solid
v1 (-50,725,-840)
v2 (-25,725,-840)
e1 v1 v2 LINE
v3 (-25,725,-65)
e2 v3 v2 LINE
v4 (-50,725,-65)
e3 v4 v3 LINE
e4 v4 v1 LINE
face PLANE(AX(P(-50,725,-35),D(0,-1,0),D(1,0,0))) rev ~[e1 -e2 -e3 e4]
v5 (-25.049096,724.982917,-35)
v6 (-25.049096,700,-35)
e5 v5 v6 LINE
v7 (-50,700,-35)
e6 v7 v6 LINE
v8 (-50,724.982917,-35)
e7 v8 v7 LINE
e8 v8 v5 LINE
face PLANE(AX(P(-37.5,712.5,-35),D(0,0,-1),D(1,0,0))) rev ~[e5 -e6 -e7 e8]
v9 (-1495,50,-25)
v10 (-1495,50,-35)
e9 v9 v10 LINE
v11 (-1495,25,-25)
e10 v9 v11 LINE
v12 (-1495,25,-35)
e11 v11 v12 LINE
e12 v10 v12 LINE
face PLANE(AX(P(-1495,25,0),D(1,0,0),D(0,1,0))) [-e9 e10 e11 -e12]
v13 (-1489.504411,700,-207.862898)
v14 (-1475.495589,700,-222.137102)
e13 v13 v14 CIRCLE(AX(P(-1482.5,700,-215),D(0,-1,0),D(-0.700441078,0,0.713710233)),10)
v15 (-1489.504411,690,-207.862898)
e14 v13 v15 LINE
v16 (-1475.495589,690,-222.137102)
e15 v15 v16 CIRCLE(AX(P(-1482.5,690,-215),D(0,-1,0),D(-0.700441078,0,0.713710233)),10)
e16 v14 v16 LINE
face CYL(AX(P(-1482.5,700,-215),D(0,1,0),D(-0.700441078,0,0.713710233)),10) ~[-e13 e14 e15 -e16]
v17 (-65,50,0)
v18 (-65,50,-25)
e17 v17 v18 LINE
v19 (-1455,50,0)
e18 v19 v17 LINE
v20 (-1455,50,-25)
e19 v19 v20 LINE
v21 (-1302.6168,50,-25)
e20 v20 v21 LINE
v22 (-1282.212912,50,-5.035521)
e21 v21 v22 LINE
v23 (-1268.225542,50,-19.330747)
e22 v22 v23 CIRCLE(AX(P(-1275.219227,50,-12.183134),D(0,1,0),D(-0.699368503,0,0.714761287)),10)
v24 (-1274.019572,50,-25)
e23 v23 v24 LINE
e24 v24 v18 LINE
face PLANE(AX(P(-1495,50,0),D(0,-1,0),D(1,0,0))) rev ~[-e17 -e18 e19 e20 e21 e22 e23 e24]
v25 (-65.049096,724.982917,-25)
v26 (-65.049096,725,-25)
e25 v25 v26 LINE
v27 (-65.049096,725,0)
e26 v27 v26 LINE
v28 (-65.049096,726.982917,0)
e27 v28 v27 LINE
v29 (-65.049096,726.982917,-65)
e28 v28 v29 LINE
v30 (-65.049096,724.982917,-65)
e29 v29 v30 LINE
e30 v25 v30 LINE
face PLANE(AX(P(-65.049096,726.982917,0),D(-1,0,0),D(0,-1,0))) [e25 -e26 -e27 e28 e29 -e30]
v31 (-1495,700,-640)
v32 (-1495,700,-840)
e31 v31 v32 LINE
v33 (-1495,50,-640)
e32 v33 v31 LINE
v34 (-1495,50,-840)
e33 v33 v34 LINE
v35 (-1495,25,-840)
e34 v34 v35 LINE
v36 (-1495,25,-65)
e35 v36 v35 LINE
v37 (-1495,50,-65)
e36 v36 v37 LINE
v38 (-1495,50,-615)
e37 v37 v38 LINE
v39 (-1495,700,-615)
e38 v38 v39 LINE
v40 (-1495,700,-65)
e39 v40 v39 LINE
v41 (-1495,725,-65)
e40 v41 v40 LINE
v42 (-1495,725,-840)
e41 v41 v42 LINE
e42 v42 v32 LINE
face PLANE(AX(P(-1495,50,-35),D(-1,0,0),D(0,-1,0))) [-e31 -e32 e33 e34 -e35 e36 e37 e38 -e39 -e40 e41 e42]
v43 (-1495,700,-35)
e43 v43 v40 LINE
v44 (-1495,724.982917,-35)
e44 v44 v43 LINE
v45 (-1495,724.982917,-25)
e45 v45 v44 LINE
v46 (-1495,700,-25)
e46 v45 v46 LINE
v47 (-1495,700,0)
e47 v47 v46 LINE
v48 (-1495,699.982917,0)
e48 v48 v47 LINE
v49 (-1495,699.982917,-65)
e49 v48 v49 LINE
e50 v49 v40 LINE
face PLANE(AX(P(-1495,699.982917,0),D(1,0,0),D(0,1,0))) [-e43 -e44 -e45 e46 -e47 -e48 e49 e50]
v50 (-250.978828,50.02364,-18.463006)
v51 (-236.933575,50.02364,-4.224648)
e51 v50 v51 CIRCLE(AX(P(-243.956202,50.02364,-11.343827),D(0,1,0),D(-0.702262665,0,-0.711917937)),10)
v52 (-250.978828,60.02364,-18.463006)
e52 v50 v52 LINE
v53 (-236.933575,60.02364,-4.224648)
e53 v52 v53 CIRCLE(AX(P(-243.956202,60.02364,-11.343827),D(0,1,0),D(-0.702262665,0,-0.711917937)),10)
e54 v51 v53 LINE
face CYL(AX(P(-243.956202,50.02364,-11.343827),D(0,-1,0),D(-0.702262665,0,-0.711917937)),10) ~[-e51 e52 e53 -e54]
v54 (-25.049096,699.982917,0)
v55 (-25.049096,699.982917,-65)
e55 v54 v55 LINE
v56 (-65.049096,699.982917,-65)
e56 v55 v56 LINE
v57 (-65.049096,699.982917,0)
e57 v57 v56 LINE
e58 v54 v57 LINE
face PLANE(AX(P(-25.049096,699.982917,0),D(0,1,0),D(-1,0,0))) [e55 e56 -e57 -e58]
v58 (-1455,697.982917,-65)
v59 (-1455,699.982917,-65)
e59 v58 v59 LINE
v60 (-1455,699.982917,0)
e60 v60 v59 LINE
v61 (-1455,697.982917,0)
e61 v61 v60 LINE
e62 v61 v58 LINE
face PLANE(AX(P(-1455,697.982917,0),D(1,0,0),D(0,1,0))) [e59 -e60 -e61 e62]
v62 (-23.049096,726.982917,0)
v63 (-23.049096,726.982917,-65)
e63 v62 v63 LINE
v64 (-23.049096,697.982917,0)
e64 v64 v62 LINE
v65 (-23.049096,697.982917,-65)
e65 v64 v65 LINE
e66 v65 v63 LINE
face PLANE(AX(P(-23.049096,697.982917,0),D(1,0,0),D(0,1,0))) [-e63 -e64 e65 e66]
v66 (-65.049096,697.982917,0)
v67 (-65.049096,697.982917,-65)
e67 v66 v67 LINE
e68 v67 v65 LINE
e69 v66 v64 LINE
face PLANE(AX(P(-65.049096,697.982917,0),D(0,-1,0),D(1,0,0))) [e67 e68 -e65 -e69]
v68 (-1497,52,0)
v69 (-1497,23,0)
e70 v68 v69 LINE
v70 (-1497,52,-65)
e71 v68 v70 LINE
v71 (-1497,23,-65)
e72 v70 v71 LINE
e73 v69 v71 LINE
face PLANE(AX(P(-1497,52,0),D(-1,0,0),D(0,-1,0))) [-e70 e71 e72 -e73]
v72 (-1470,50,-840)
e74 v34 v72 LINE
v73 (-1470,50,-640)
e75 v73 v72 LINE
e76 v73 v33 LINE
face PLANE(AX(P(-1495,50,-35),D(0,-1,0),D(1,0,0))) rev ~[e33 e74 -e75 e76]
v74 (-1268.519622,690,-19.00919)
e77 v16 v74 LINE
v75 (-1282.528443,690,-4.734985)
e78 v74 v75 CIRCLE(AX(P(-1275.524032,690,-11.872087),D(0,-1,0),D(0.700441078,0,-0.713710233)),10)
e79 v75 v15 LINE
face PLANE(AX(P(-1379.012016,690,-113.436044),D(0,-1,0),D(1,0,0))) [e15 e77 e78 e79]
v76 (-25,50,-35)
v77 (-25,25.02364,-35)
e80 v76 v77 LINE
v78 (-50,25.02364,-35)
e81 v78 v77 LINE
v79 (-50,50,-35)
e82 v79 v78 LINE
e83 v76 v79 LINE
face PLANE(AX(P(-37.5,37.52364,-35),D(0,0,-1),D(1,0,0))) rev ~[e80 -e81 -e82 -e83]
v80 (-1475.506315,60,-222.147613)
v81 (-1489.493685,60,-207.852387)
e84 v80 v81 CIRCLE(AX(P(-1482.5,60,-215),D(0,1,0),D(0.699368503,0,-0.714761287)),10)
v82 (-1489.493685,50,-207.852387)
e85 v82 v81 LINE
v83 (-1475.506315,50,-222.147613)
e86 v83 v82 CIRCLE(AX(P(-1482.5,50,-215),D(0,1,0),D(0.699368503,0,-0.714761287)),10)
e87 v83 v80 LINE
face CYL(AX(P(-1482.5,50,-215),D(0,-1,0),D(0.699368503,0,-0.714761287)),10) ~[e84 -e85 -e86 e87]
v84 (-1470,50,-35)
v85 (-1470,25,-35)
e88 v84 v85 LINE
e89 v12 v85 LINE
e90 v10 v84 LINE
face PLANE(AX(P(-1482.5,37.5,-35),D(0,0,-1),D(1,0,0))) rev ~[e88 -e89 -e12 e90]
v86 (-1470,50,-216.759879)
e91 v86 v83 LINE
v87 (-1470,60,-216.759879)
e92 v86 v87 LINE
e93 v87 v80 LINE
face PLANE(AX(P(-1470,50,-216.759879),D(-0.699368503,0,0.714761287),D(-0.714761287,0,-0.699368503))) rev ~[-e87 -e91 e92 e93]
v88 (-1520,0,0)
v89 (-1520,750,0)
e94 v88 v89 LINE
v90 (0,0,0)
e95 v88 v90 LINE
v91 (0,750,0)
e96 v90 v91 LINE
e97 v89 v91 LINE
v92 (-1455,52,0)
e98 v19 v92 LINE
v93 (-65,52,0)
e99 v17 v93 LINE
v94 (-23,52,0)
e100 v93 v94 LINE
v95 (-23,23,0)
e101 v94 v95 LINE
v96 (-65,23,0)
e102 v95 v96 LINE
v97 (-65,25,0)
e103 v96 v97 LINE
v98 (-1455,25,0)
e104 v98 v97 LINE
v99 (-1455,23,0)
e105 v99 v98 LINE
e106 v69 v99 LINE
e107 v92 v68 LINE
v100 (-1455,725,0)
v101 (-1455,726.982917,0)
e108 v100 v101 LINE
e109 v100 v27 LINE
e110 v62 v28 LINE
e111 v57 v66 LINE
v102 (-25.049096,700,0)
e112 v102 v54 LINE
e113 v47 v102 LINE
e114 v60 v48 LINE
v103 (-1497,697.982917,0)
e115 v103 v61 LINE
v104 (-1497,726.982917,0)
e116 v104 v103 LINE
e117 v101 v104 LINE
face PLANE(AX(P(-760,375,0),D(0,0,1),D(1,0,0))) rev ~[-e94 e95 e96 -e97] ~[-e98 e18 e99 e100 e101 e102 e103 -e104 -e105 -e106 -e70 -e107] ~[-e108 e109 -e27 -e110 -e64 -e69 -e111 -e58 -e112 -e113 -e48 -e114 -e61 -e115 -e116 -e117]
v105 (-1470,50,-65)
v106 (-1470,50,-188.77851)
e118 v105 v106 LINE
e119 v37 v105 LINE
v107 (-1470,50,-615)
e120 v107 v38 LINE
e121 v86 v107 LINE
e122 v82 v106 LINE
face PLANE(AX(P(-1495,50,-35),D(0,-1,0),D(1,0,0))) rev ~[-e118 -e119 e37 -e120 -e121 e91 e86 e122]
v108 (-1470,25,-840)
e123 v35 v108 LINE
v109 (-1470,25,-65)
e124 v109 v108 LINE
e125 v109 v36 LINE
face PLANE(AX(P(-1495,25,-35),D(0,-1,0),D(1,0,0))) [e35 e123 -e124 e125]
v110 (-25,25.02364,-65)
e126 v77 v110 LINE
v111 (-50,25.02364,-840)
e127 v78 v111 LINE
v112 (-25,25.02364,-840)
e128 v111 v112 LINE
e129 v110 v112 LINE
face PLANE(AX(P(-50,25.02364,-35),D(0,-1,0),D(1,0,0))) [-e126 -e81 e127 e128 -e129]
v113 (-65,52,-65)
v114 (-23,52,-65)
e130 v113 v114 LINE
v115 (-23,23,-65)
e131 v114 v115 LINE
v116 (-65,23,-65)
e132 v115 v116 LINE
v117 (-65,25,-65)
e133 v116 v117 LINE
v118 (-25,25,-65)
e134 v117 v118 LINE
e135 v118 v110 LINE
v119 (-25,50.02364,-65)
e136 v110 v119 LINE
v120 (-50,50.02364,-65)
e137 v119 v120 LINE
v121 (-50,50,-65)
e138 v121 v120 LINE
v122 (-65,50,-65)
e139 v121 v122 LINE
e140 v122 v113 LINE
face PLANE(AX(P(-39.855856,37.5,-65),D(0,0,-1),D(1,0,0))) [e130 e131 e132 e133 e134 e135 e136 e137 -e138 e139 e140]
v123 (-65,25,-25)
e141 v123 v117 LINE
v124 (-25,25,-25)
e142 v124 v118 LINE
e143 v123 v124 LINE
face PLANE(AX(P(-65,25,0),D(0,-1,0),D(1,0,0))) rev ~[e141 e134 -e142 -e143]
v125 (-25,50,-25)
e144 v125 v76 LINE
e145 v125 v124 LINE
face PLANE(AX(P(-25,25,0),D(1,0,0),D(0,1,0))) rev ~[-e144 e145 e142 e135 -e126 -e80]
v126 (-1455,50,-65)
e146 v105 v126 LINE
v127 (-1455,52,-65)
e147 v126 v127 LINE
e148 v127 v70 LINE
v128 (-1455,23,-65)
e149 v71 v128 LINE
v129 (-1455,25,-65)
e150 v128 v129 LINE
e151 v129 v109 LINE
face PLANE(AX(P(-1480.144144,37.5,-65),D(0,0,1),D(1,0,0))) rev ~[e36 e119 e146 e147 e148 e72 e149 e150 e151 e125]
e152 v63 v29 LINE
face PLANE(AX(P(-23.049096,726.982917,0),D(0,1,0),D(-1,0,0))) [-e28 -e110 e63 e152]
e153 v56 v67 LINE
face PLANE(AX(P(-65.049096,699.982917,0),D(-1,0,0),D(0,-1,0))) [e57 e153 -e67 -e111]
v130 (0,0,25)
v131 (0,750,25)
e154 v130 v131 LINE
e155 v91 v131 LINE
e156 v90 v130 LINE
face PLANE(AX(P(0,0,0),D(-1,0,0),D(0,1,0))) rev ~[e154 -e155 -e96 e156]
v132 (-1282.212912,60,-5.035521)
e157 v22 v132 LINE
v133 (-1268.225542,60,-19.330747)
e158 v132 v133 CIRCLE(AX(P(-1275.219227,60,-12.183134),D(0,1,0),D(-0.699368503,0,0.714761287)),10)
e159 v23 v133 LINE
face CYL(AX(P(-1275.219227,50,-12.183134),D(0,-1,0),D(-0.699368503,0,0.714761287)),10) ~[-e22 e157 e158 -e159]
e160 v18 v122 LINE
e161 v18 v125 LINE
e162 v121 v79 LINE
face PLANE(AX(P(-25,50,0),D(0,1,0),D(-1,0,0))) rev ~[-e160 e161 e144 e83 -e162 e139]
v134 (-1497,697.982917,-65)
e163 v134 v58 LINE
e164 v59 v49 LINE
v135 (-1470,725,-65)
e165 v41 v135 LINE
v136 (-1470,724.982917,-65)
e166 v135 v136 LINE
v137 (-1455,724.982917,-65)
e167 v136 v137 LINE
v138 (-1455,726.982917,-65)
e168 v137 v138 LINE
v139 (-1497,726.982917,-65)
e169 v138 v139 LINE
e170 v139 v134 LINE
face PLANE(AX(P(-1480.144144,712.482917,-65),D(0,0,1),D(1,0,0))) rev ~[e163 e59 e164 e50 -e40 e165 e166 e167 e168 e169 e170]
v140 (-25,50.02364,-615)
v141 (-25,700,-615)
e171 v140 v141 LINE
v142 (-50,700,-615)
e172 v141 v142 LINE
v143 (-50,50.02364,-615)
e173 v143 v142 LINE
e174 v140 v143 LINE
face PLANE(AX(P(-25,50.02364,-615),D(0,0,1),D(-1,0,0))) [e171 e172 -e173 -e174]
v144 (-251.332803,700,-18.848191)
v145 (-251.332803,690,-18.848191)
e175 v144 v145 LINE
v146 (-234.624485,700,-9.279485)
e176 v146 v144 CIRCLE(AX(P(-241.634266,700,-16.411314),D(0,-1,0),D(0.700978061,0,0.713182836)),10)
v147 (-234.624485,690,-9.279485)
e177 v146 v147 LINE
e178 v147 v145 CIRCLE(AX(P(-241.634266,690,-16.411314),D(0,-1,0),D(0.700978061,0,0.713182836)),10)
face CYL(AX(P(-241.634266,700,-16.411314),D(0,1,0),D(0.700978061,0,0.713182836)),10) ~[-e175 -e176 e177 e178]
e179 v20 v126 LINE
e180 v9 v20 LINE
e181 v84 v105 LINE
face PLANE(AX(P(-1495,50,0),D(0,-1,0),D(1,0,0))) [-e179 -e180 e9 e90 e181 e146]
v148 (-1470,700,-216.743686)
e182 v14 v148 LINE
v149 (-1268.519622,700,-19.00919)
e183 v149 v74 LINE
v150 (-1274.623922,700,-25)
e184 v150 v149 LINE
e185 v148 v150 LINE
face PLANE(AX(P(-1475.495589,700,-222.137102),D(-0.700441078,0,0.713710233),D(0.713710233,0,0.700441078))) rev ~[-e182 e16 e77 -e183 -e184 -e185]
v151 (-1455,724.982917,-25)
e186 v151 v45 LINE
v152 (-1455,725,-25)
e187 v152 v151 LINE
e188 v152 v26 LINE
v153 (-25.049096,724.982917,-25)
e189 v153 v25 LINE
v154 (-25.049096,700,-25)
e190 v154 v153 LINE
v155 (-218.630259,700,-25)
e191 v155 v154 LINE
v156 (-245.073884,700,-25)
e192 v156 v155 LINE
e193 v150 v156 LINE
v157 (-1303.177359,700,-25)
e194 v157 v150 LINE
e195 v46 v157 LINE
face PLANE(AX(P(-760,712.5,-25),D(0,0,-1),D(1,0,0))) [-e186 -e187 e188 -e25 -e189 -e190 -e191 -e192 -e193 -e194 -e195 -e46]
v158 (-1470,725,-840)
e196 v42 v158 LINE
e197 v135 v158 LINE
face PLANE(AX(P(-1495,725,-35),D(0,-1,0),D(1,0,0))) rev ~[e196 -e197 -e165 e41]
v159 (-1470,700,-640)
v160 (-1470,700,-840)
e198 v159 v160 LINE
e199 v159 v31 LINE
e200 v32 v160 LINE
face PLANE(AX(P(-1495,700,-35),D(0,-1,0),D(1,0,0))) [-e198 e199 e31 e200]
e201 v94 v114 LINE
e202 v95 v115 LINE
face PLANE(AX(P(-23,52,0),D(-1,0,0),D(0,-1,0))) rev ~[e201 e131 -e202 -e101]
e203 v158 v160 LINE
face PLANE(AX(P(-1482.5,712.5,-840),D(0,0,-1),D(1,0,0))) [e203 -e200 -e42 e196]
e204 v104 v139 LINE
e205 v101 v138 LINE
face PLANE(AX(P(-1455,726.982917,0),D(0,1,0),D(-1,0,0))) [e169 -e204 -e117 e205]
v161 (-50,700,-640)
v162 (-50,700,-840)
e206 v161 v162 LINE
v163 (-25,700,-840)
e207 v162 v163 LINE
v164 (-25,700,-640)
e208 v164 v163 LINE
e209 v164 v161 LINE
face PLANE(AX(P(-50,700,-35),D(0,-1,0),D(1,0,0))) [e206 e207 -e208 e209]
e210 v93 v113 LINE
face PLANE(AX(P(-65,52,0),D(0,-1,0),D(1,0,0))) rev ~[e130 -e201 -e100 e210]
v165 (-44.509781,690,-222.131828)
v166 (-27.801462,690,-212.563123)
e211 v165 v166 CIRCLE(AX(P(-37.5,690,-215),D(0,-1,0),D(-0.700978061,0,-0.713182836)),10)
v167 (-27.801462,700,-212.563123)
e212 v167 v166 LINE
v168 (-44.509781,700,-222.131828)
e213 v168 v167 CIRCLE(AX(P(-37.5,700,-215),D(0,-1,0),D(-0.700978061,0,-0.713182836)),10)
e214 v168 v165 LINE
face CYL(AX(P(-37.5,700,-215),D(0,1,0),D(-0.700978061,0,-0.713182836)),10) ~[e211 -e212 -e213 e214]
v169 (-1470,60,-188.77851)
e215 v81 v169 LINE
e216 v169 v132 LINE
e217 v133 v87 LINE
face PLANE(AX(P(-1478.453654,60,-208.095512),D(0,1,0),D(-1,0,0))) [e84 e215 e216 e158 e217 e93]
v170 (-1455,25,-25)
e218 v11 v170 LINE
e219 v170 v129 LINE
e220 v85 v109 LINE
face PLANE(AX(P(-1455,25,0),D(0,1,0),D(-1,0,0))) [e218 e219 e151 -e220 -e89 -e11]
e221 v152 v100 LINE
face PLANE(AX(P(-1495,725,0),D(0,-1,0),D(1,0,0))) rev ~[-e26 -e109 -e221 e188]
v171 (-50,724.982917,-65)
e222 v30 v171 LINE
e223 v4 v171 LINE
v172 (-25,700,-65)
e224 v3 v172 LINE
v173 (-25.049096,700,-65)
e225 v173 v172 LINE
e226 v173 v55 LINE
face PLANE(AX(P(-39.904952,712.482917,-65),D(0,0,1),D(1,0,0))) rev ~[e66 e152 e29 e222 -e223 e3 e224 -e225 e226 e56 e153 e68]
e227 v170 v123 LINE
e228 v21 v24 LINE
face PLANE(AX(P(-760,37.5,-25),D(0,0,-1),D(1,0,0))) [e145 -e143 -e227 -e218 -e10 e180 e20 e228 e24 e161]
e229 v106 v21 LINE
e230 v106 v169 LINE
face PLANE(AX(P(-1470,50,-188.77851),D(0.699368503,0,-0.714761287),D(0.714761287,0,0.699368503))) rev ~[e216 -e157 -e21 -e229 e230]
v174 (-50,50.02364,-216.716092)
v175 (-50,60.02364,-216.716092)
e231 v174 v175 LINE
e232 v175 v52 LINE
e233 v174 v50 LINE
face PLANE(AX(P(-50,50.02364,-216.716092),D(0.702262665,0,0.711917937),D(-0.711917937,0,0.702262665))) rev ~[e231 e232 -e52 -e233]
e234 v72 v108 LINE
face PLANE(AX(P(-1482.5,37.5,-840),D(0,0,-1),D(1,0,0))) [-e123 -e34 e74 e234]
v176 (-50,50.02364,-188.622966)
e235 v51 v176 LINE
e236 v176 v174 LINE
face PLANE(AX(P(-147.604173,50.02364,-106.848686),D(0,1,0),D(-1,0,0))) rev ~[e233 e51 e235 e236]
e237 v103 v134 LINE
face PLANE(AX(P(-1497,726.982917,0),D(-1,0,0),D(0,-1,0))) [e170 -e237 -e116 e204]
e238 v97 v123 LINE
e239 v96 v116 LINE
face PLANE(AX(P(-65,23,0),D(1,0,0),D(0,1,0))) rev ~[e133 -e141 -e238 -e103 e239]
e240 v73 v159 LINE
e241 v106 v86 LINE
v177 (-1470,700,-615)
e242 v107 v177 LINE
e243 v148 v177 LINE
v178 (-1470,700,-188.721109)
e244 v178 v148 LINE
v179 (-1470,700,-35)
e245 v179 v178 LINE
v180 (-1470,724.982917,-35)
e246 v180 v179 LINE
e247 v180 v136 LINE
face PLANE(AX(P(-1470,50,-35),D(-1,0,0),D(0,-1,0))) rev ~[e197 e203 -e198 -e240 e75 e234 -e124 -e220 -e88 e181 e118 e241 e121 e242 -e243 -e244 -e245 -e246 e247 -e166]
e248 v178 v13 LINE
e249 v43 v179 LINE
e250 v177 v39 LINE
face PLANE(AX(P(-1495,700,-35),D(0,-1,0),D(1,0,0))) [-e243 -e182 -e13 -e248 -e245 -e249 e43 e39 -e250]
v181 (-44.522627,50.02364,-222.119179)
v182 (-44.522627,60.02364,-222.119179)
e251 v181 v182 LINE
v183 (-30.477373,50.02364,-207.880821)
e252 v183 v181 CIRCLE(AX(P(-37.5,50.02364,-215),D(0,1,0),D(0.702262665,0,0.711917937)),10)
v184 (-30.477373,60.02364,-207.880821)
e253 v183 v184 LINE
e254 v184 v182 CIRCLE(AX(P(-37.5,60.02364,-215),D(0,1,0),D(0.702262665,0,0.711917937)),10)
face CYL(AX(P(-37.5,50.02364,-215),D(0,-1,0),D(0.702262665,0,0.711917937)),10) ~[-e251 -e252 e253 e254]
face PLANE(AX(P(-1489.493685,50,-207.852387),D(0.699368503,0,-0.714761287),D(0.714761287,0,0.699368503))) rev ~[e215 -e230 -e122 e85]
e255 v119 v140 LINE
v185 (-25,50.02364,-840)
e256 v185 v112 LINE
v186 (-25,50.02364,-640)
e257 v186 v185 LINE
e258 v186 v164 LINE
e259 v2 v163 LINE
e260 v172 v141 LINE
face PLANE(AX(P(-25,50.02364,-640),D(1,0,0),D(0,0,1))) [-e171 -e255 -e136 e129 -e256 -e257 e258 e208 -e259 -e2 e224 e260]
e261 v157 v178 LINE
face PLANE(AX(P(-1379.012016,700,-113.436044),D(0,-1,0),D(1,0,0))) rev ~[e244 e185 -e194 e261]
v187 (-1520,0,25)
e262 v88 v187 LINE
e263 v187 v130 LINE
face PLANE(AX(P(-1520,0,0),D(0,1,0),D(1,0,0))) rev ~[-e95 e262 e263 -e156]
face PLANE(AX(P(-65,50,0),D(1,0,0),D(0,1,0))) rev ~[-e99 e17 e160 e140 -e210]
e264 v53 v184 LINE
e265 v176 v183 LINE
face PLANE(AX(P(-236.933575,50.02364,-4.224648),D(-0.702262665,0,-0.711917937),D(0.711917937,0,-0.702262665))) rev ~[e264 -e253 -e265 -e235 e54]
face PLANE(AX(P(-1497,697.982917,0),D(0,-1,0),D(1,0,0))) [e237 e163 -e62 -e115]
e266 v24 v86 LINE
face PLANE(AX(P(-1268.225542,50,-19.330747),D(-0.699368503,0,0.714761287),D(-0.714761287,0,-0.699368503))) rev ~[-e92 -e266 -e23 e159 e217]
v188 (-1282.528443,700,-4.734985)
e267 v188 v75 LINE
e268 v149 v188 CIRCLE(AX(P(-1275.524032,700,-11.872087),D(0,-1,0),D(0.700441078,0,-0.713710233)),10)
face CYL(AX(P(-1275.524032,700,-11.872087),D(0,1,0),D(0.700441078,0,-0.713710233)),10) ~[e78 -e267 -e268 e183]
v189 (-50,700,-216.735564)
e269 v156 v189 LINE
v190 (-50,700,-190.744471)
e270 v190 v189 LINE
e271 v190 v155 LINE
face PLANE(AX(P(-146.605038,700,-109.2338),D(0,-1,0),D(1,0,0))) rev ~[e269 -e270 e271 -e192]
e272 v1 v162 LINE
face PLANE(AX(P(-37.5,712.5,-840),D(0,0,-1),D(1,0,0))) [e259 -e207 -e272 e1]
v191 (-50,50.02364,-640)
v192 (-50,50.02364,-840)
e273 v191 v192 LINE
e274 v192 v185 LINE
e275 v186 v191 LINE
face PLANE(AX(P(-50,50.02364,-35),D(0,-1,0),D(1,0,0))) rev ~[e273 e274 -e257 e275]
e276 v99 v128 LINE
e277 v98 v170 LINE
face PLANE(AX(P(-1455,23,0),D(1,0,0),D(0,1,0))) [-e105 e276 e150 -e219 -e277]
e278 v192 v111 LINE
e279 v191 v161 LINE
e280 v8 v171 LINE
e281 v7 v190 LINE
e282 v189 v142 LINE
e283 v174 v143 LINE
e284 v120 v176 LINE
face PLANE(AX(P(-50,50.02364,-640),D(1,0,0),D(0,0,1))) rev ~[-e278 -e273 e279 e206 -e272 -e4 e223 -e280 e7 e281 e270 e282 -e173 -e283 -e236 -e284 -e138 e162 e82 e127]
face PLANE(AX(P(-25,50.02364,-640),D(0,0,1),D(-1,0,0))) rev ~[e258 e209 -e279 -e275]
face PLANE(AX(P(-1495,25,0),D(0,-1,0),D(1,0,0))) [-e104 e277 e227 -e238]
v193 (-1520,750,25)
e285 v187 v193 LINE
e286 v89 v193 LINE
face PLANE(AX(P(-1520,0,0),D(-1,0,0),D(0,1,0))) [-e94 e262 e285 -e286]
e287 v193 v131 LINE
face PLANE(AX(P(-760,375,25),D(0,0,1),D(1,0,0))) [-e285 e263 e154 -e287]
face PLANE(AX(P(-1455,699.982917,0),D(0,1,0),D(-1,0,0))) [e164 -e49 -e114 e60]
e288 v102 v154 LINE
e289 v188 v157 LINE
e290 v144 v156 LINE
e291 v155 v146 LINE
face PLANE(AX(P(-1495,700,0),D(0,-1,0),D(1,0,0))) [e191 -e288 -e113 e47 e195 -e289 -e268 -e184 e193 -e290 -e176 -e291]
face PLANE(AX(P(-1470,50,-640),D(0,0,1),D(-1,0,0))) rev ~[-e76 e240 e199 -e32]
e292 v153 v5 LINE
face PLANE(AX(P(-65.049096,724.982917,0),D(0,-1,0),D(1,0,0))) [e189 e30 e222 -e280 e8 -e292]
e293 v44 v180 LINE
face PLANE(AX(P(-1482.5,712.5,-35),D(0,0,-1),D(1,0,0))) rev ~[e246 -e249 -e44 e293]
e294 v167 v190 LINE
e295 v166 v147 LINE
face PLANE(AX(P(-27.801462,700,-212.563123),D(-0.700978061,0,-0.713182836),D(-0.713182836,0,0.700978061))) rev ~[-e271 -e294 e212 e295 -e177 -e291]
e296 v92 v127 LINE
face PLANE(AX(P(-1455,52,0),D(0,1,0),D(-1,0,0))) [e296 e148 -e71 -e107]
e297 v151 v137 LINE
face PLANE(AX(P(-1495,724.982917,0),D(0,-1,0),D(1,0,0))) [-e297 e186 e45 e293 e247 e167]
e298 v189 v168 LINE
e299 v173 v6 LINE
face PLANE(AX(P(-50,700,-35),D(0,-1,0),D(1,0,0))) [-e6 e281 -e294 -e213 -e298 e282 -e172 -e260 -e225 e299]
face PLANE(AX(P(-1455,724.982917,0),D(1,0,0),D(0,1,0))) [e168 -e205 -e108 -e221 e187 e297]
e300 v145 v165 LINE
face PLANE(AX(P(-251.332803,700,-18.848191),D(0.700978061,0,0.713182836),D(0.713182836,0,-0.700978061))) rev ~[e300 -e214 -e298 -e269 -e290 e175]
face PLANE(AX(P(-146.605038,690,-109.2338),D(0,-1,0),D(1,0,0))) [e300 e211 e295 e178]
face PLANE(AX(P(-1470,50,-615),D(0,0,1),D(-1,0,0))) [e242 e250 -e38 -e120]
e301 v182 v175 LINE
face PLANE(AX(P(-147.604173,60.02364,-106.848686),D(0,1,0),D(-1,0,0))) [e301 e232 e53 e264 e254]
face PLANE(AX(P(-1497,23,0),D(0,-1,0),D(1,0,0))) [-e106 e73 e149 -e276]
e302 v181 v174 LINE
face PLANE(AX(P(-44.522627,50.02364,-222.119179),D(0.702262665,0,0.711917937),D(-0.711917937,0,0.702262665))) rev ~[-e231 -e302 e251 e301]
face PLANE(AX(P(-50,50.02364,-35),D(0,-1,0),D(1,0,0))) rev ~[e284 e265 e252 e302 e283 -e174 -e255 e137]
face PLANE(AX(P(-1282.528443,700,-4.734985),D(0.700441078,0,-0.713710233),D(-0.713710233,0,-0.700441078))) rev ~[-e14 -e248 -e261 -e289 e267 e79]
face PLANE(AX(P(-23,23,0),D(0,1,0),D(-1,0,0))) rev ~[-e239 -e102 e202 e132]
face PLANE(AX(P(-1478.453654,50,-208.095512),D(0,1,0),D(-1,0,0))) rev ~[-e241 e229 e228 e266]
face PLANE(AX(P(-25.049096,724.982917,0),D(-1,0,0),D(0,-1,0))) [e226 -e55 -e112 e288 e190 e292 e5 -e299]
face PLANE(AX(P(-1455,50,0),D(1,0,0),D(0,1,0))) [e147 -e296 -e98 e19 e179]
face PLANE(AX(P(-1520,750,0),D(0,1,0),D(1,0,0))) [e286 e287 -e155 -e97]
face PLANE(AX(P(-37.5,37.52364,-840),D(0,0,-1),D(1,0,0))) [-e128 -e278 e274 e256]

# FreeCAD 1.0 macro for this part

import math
import FreeCAD as App
import Part
import Sketcher

V = App.Vector

doc = App.newDocument("Part")
body = doc.addObject("PartDesign::Body", "Body")

sketch1 = body.newObject("Sketcher::SketchObject", "Sketch")
sketch1.AttachmentSupport = (doc.getObject("XY_Plane"), [""])
sketch1.MapMode = "FlatFace"
sketch1.addGeometry([
    Part.LineSegment(V(-1520, 750, 0), V(-1520, 0, 0)),
    Part.LineSegment(V(-1520, 0, 0), V(0, 0, 0)),
    Part.LineSegment(V(0, 0, 0), V(0, 750, 0)),
    Part.LineSegment(V(0, 750, 0), V(-1520, 750, 0)),
], False)
sketch1.addConstraint([
    Sketcher.Constraint("Coincident", 0, 2, 1, 1),
    Sketcher.Constraint("Coincident", 1, 2, 2, 1),
    Sketcher.Constraint("Coincident", 2, 2, 3, 1),
    Sketcher.Constraint("Coincident", 3, 2, 0, 1),
    Sketcher.Constraint("Vertical", 0),
    Sketcher.Constraint("Horizontal", 1),
    Sketcher.Constraint("Vertical", 2),
    Sketcher.Constraint("Horizontal", 3),
    Sketcher.Constraint("Coincident", 1, 2, -1, 1),
    Sketcher.Constraint("DistanceX", 1, 1, 1, 2, 1520.0),
    Sketcher.Constraint("DistanceY", 0, 2, 0, 1, 750.0),
])
pad1 = body.newObject("PartDesign::Pad", "Pad")
pad1.Profile = sketch1
pad1.Length = 25

sketch2 = body.newObject("Sketcher::SketchObject", "Sketch001")
sketch2.AttachmentSupport = (doc.getObject("XY_Plane"), [""])
sketch2.MapMode = "FlatFace"
sketch2.addGeometry([
    Part.LineSegment(V(-1495, 25, 0), V(-1495, 50, 0)),
    Part.LineSegment(V(-1495, 50, 0), V(-25, 50, 0)),
    Part.LineSegment(V(-25, 50, 0), V(-25, 25, 0)),
    Part.LineSegment(V(-25, 25, 0), V(-1495, 25, 0)),
    Part.LineSegment(V(-1495, 700, 0), V(-1495, 725, 0)),
    Part.LineSegment(V(-1495, 725, 0), V(-25, 725, 0)),
    Part.LineSegment(V(-25, 725, 0), V(-25, 700, 0)),
    Part.LineSegment(V(-25, 700, 0), V(-1495, 700, 0)),
], False)
sketch2.addConstraint([
    Sketcher.Constraint("Coincident", 0, 2, 1, 1),
    Sketcher.Constraint("Coincident", 1, 2, 2, 1),
    Sketcher.Constraint("Coincident", 2, 2, 3, 1),
    Sketcher.Constraint("Coincident", 3, 2, 0, 1),
    Sketcher.Constraint("Coincident", 4, 2, 5, 1),
    Sketcher.Constraint("Coincident", 5, 2, 6, 1),
    Sketcher.Constraint("Coincident", 6, 2, 7, 1),
    Sketcher.Constraint("Coincident", 7, 2, 4, 1),
    Sketcher.Constraint("Vertical", 0),
    Sketcher.Constraint("Horizontal", 1),
    Sketcher.Constraint("Vertical", 2),
    Sketcher.Constraint("Horizontal", 3),
    Sketcher.Constraint("Vertical", 4),
    Sketcher.Constraint("Horizontal", 5),
    Sketcher.Constraint("Vertical", 6),
    Sketcher.Constraint("Horizontal", 7),
    Sketcher.Constraint("Vertical", 3, 2, 4, 2),
    Sketcher.Constraint("Vertical", 2, 2, 5, 2),
    Sketcher.Constraint("Equal", 2, 4),
    Sketcher.Constraint("DistanceX", 1, 1, 1, 2, 1470.0),
    Sketcher.Constraint("DistanceY", 0, 1, 0, 2, 25.0),
    Sketcher.Constraint("DistanceX", 0, 2, -1, 1, 1495.0),
    Sketcher.Constraint("DistanceY", -1, 1, 0, 2, 50.0),
    Sketcher.Constraint("DistanceY", -1, 1, 4, 2, 725.0),
])
pad2 = body.newObject("PartDesign::Pad", "Pad001")
pad2.Profile = sketch2
pad2.Length = 25
pad2.Reversed = True

sketch3 = body.newObject("Sketcher::SketchObject", "Sketch002")
sketch3.AttachmentSupport = (doc.getObject("XY_Plane"), [""])
sketch3.MapMode = "FlatFace"
sketch3.addGeometry([
    Part.LineSegment(V(-65, 25, 0), V(-25, 25, 0)),
    Part.LineSegment(V(-25, 25, 0), V(-25, 50, 0)),
    Part.LineSegment(V(-25, 50, 0), V(-65, 50, 0)),
    Part.LineSegment(V(-65, 50, 0), V(-65, 52, 0)),
    Part.LineSegment(V(-65, 52, 0), V(-23, 52, 0)),
    Part.LineSegment(V(-23, 52, 0), V(-23, 23, 0)),
    Part.LineSegment(V(-23, 23, 0), V(-65, 23, 0)),
    Part.LineSegment(V(-65, 23, 0), V(-65, 25, 0)),
], False)
sketch3.addConstraint([
    Sketcher.Constraint("Coincident", 0, 2, 1, 1),
    Sketcher.Constraint("Coincident", 1, 2, 2, 1),
    Sketcher.Constraint("Coincident", 2, 2, 3, 1),
    Sketcher.Constraint("Coincident", 3, 2, 4, 1),
    Sketcher.Constraint("Coincident", 4, 2, 5, 1),
    Sketcher.Constraint("Coincident", 5, 2, 6, 1),
    Sketcher.Constraint("Coincident", 6, 2, 7, 1),
    Sketcher.Constraint("Coincident", 7, 2, 0, 1),
    Sketcher.Constraint("Horizontal", 0),
    Sketcher.Constraint("Vertical", 1),
    Sketcher.Constraint("Horizontal", 2),
    Sketcher.Constraint("Vertical", 3),
    Sketcher.Constraint("Horizontal", 4),
    Sketcher.Constraint("Vertical", 5),
    Sketcher.Constraint("Horizontal", 6),
    Sketcher.Constraint("Vertical", 7),
    Sketcher.Constraint("Vertical", 3, 2, 6, 2),
    Sketcher.Constraint("Equal", 3, 7),
    Sketcher.Constraint("DistanceX", 0, 1, 0, 2, 40.0),
    Sketcher.Constraint("DistanceX", 4, 1, 4, 2, 42.0),
    Sketcher.Constraint("DistanceY", 1, 1, 1, 2, 25.0),
    Sketcher.Constraint("DistanceY", 3, 1, 3, 2, 2.0),
    Sketcher.Constraint("DistanceX", 0, 2, -1, 1, 25.0),
    Sketcher.Constraint("DistanceY", -1, 1, 0, 2, 25.0),
])
pad3 = body.newObject("PartDesign::Pad", "Pad002")
pad3.Profile = sketch3
pad3.Length = 65
pad3.Reversed = True

sketch4 = body.newObject("Sketcher::SketchObject", "Sketch003")
sketch4.AttachmentSupport = (doc.getObject("XY_Plane"), [""])
sketch4.MapMode = "FlatFace"
sketch4.AttachmentOffset = App.Placement(V(0, 0, -35), App.Rotation())
sketch4.addGeometry([
    Part.LineSegment(V(-50, 25, 0), V(-50, 50, 0)),
    Part.LineSegment(V(-50, 50, 0), V(-25, 50, 0)),
    Part.LineSegment(V(-25, 50, 0), V(-25, 25, 0)),
    Part.LineSegment(V(-25, 25, 0), V(-50, 25, 0)),
], False)
sketch4.addConstraint([
    Sketcher.Constraint("Coincident", 0, 2, 1, 1),
    Sketcher.Constraint("Coincident", 1, 2, 2, 1),
    Sketcher.Constraint("Coincident", 2, 2, 3, 1),
    Sketcher.Constraint("Coincident", 3, 2, 0, 1),
    Sketcher.Constraint("Vertical", 0),
    Sketcher.Constraint("Horizontal", 1),
    Sketcher.Constraint("Vertical", 2),
    Sketcher.Constraint("Horizontal", 3),
    Sketcher.Constraint("Equal", 3, 0),
    Sketcher.Constraint("DistanceX", 1, 1, 1, 2, 25.0),
    Sketcher.Constraint("DistanceX", 0, 2, -1, 1, 50.0),
    Sketcher.Constraint("DistanceY", -1, 1, 0, 2, 50.02364),
])
pad4 = body.newObject("PartDesign::Pad", "Pad003")
pad4.Profile = sketch4
pad4.Length = 805
pad4.Reversed = True

sketch5 = body.newObject("Sketcher::SketchObject", "Sketch004")
sketch5.AttachmentSupport = (doc.getObject("XY_Plane"), [""])
sketch5.MapMode = "FlatFace"
sketch5.addGeometry([
    Part.LineSegment(V(-1495, 725, 0), V(-1455, 725, 0)),
    Part.LineSegment(V(-1455, 725, 0), V(-1455, 727, 0)),
    Part.LineSegment(V(-1455, 727, 0), V(-1497, 727, 0)),
    Part.LineSegment(V(-1497, 727, 0), V(-1497, 698, 0)),
    Part.LineSegment(V(-1497, 698, 0), V(-1455, 698, 0)),
    Part.LineSegment(V(-1455, 698, 0), V(-1455, 700, 0)),
    Part.LineSegment(V(-1455, 700, 0), V(-1495, 700, 0)),
    Part.LineSegment(V(-1495, 700, 0), V(-1495, 725, 0)),
    Part.LineSegment(V(-65, 727, 0), V(-65, 725, 0)),
    Part.LineSegment(V(-65, 725, 0), V(-25, 725, 0)),
    Part.LineSegment(V(-25, 725, 0), V(-25, 700, 0)),
    Part.LineSegment(V(-25, 700, 0), V(-65, 700, 0)),
    Part.LineSegment(V(-65, 700, 0), V(-65, 698, 0)),
    Part.LineSegment(V(-65, 698, 0), V(-23, 698, 0)),
    Part.LineSegment(V(-23, 698, 0), V(-23, 727, 0)),
    Part.LineSegment(V(-23, 727, 0), V(-65, 727, 0)),
    Part.LineSegment(V(-1455, 25, 0), V(-1495, 25, 0)),
    Part.LineSegment(V(-1495, 25, 0), V(-1495, 50, 0)),
    Part.LineSegment(V(-1495, 50, 0), V(-1455, 50, 0)),
    Part.LineSegment(V(-1455, 50, 0), V(-1455, 52, 0)),
    Part.LineSegment(V(-1455, 52, 0), V(-1497, 52, 0)),
    Part.LineSegment(V(-1497, 52, 0), V(-1497, 23, 0)),
    Part.LineSegment(V(-1497, 23, 0), V(-1455, 23, 0)),
    Part.LineSegment(V(-1455, 23, 0), V(-1455, 25, 0)),
], False)
sketch5.addConstraint([
    Sketcher.Constraint("Coincident", 0, 2, 1, 1),
    Sketcher.Constraint("Coincident", 1, 2, 2, 1),
    Sketcher.Constraint("Coincident", 2, 2, 3, 1),
    Sketcher.Constraint("Coincident", 3, 2, 4, 1),
    Sketcher.Constraint("Coincident", 4, 2, 5, 1),
    Sketcher.Constraint("Coincident", 5, 2, 6, 1),
    Sketcher.Constraint("Coincident", 6, 2, 7, 1),
    Sketcher.Constraint("Coincident", 7, 2, 0, 1),
    Sketcher.Constraint("Coincident", 8, 2, 9, 1),
    Sketcher.Constraint("Coincident", 9, 2, 10, 1),
    Sketcher.Constraint("Coincident", 10, 2, 11, 1),
    Sketcher.Constraint("Coincident", 11, 2, 12, 1),
    Sketcher.Constraint("Coincident", 12, 2, 13, 1),
    Sketcher.Constraint("Coincident", 13, 2, 14, 1),
    Sketcher.Constraint("Coincident", 14, 2, 15, 1),
    Sketcher.Constraint("Coincident", 15, 2, 8, 1),
    Sketcher.Constraint("Coincident", 16, 2, 17, 1),
    Sketcher.Constraint("Coincident", 17, 2, 18, 1),
    Sketcher.Constraint("Coincident", 18, 2, 19, 1),
    Sketcher.Constraint("Coincident", 19, 2, 20, 1),
    Sketcher.Constraint("Coincident", 20, 2, 21, 1),
    Sketcher.Constraint("Coincident", 21, 2, 22, 1),
    Sketcher.Constraint("Coincident", 22, 2, 23, 1),
    Sketcher.Constraint("Coincident", 23, 2, 16, 1),
    Sketcher.Constraint("Horizontal", 0),
    Sketcher.Constraint("Vertical", 1),
    Sketcher.Constraint("Horizontal", 2),
    Sketcher.Constraint("Vertical", 3),
    Sketcher.Constraint("Horizontal", 4),
    Sketcher.Constraint("Vertical", 5),
    Sketcher.Constraint("Horizontal", 6),
    Sketcher.Constraint("Vertical", 7),
    Sketcher.Constraint("Vertical", 8),
    Sketcher.Constraint("Horizontal", 9),
    Sketcher.Constraint("Vertical", 10),
    Sketcher.Constraint("Horizontal", 11),
    Sketcher.Constraint("Vertical", 12),
    Sketcher.Constraint("Horizontal", 13),
    Sketcher.Constraint("Vertical", 14),
    Sketcher.Constraint("Horizontal", 15),
    Sketcher.Constraint("Horizontal", 16),
    Sketcher.Constraint("Vertical", 17),
    Sketcher.Constraint("Horizontal", 18),
    Sketcher.Constraint("Vertical", 19),
    Sketcher.Constraint("Horizontal", 20),
    Sketcher.Constraint("Vertical", 21),
    Sketcher.Constraint("Horizontal", 22),
    Sketcher.Constraint("Vertical", 23),
    Sketcher.Constraint("Horizontal", 7, 2, 8, 2),
    Sketcher.Constraint("Horizontal", 6, 2, 10, 2),
    Sketcher.Constraint("Horizontal", 4, 2, 12, 2),
    Sketcher.Constraint("Horizontal", 2, 2, 14, 2),
    Sketcher.Constraint("Vertical", 1, 2, 4, 2),
    Sketcher.Constraint("Vertical", 8, 2, 11, 2),
    Sketcher.Constraint("Vertical", 7, 2, 16, 2),
    Sketcher.Constraint("Vertical", 5, 2, 18, 2),
    Sketcher.Constraint("Vertical", 3, 2, 20, 2),
    Sketcher.Constraint("Vertical", 19, 2, 22, 2),
    Sketcher.Constraint("Equal", 6, 9),
    Sketcher.Constraint("Equal", 4, 13),
    Sketcher.Constraint("Equal", 1, 5),
    Sketcher.Constraint("Equal", 10, 17),
    Sketcher.Constraint("Equal", 12, 19),
    Sketcher.Constraint("Equal", 14, 21),
    Sketcher.Constraint("DistanceX", 0, 1, 0, 2, 40.0),
    Sketcher.Constraint("DistanceX", 2, 2, 2, 1, 42.0),
    Sketcher.Constraint("DistanceY", 1, 1, 1, 2, 2.0),
    Sketcher.Constraint("DistanceY", 3, 2, 3, 1, 29.0),
    Sketcher.Constraint("DistanceX", 0, 2, -1, 1, 1455.0),
    Sketcher.Constraint("DistanceY", -1, 1, 16, 2, 25.0),
    Sketcher.Constraint("DistanceY", -1, 1, 0, 2, 724.982917),
    Sketcher.Constraint("DistanceX", 8, 2, -1, 1, 65.049096),
])
pad5 = body.newObject("PartDesign::Pad", "Pad004")
pad5.Profile = sketch5
pad5.Length = 65
pad5.Reversed = True

sketch6 = body.newObject("Sketcher::SketchObject", "Sketch005")
sketch6.AttachmentSupport = (doc.getObject("XY_Plane"), [""])
sketch6.MapMode = "FlatFace"
sketch6.AttachmentOffset = App.Placement(V(0, 0, -35), App.Rotation())
sketch6.addGeometry([
    Part.LineSegment(V(-1495, 25, 0), V(-1495, 50, 0)),
    Part.LineSegment(V(-1495, 50, 0), V(-1470, 50, 0)),
    Part.LineSegment(V(-1470, 50, 0), V(-1470, 25, 0)),
    Part.LineSegment(V(-1470, 25, 0), V(-1495, 25, 0)),
], False)
sketch6.addConstraint([
    Sketcher.Constraint("Coincident", 0, 2, 1, 1),
    Sketcher.Constraint("Coincident", 1, 2, 2, 1),
    Sketcher.Constraint("Coincident", 2, 2, 3, 1),
    Sketcher.Constraint("Coincident", 3, 2, 0, 1),
    Sketcher.Constraint("Vertical", 0),
    Sketcher.Constraint("Horizontal", 1),
    Sketcher.Constraint("Vertical", 2),
    Sketcher.Constraint("Horizontal", 3),
    Sketcher.Constraint("Equal", 3, 0),
    Sketcher.Constraint("DistanceX", 1, 1, 1, 2, 25.0),
    Sketcher.Constraint("DistanceX", 0, 2, -1, 1, 1495.0),
    Sketcher.Constraint("DistanceY", -1, 1, 0, 2, 50.0),
])
pad6 = body.newObject("PartDesign::Pad", "Pad005")
pad6.Profile = sketch6
pad6.Length = 805
pad6.Reversed = True

sketch7 = body.newObject("Sketcher::SketchObject", "Sketch006")
sketch7.AttachmentSupport = (doc.getObject("XY_Plane"), [""])
sketch7.MapMode = "FlatFace"
sketch7.AttachmentOffset = App.Placement(V(0, 0, -35), App.Rotation())
sketch7.addGeometry([
    Part.LineSegment(V(-50, 700, 0), V(-50, 725, 0)),
    Part.LineSegment(V(-50, 725, 0), V(-25, 725, 0)),
    Part.LineSegment(V(-25, 725, 0), V(-25, 700, 0)),
    Part.LineSegment(V(-25, 700, 0), V(-50, 700, 0)),
    Part.LineSegment(V(-1495, 700, 0), V(-1495, 725, 0)),
    Part.LineSegment(V(-1495, 725, 0), V(-1470, 725, 0)),
    Part.LineSegment(V(-1470, 725, 0), V(-1470, 700, 0)),
    Part.LineSegment(V(-1470, 700, 0), V(-1495, 700, 0)),
], False)
sketch7.addConstraint([
    Sketcher.Constraint("Coincident", 0, 2, 1, 1),
    Sketcher.Constraint("Coincident", 1, 2, 2, 1),
    Sketcher.Constraint("Coincident", 2, 2, 3, 1),
    Sketcher.Constraint("Coincident", 3, 2, 0, 1),
    Sketcher.Constraint("Coincident", 4, 2, 5, 1),
    Sketcher.Constraint("Coincident", 5, 2, 6, 1),
    Sketcher.Constraint("Coincident", 6, 2, 7, 1),
    Sketcher.Constraint("Coincident", 7, 2, 4, 1),
    Sketcher.Constraint("Vertical", 0),
    Sketcher.Constraint("Horizontal", 1),
    Sketcher.Constraint("Vertical", 2),
    Sketcher.Constraint("Horizontal", 3),
    Sketcher.Constraint("Vertical", 4),
    Sketcher.Constraint("Horizontal", 5),
    Sketcher.Constraint("Vertical", 6),
    Sketcher.Constraint("Horizontal", 7),
    Sketcher.Constraint("Horizontal", 1, 2, 4, 2),
    Sketcher.Constraint("Horizontal", 3, 2, 6, 2),
    Sketcher.Constraint("Equal", 3, 5),
    Sketcher.Constraint("Equal", 7, 0),
    Sketcher.Constraint("DistanceX", 1, 1, 1, 2, 25.0),
    Sketcher.Constraint("DistanceX", 0, 2, -1, 1, 50.0),
    Sketcher.Constraint("DistanceY", -1, 1, 0, 2, 725.0),
    Sketcher.Constraint("DistanceX", 4, 2, -1, 1, 1495.0),
])
pad7 = body.newObject("PartDesign::Pad", "Pad006")
pad7.Profile = sketch7
pad7.Length = 805
pad7.Reversed = True

sketch8 = body.newObject("Sketcher::SketchObject", "Sketch007")
sketch8.AttachmentSupport = (doc.getObject("XZ_Plane"), [""])
sketch8.MapMode = "FlatFace"
sketch8.AttachmentOffset = App.Placement(V(0, 0, -50.02364), App.Rotation())
sketch8.addGeometry([
    Part.LineSegment(V(-25, -615, 0), V(-25, -640, 0)),
    Part.LineSegment(V(-25, -640, 0), V(-50, -640, 0)),
    Part.LineSegment(V(-50, -640, 0), V(-50, -615, 0)),
    Part.LineSegment(V(-50, -615, 0), V(-25, -615, 0)),
], False)
sketch8.addConstraint([
    Sketcher.Constraint("Coincident", 0, 2, 1, 1),
    Sketcher.Constraint("Coincident", 1, 2, 2, 1),
    Sketcher.Constraint("Coincident", 2, 2, 3, 1),
    Sketcher.Constraint("Coincident", 3, 2, 0, 1),
    Sketcher.Constraint("Vertical", 0),
    Sketcher.Constraint("Horizontal", 1),
    Sketcher.Constraint("Vertical", 2),
    Sketcher.Constraint("Horizontal", 3),
    Sketcher.Constraint("Equal", 3, 0),
    Sketcher.Constraint("DistanceX", 1, 2, 1, 1, 25.0),
    Sketcher.Constraint("DistanceX", 0, 2, -1, 1, 25.0),
    Sketcher.Constraint("DistanceY", 0, 2, -1, 1, 640.0),
])
pad8 = body.newObject("PartDesign::Pad", "Pad007")
pad8.Profile = sketch8
pad8.Length = 650
pad8.Reversed = True

sketch9 = body.newObject("Sketcher::SketchObject", "Sketch008")
sketch9.AttachmentSupport = (doc.getObject("XZ_Plane"), [""])
sketch9.MapMode = "FlatFace"
sketch9.AttachmentOffset = App.Placement(V(0, 0, -50), App.Rotation())
sketch9.addGeometry([
    Part.LineSegment(V(-1470, -615, 0), V(-1470, -640, 0)),
    Part.LineSegment(V(-1470, -640, 0), V(-1495, -640, 0)),
    Part.LineSegment(V(-1495, -640, 0), V(-1495, -615, 0)),
    Part.LineSegment(V(-1495, -615, 0), V(-1470, -615, 0)),
], False)
sketch9.addConstraint([
    Sketcher.Constraint("Coincident", 0, 2, 1, 1),
    Sketcher.Constraint("Coincident", 1, 2, 2, 1),
    Sketcher.Constraint("Coincident", 2, 2, 3, 1),
    Sketcher.Constraint("Coincident", 3, 2, 0, 1),
    Sketcher.Constraint("Vertical", 0),
    Sketcher.Constraint("Horizontal", 1),
    Sketcher.Constraint("Vertical", 2),
    Sketcher.Constraint("Horizontal", 3),
    Sketcher.Constraint("Equal", 3, 0),
    Sketcher.Constraint("DistanceX", 1, 2, 1, 1, 25.0),
    Sketcher.Constraint("DistanceX", 0, 2, -1, 1, 1470.0),
    Sketcher.Constraint("DistanceY", 0, 2, -1, 1, 640.0),
])
pad9 = body.newObject("PartDesign::Pad", "Pad008")
pad9.Profile = sketch9
pad9.Length = 650
pad9.Reversed = True

sketch10 = body.newObject("Sketcher::SketchObject", "Sketch009")
sketch10.AttachmentSupport = (doc.getObject("XZ_Plane"), [""])
sketch10.MapMode = "FlatFace"
sketch10.AttachmentOffset = App.Placement(V(0, 0, -700), App.Rotation())
sketch10.addGeometry([
    Part.ArcOfCircle(Part.Circle(V(-242, -16, 0), V(0, 0, 1), 10), math.radians(45), math.radians(194)),
    Part.LineSegment(V(-251, -19, 0), V(-45, -222, 0)),
    Part.ArcOfCircle(Part.Circle(V(-38, -215, 0), V(0, 0, 1), 10), math.radians(-135), math.radians(14)),
    Part.LineSegment(V(-28, -213, 0), V(-235, -9, 0)),
], False)
sketch10.addConstraint([
    Sketcher.Constraint("Coincident", 0, 2, 1, 1),
    Sketcher.Constraint("Tangent", 1, 2, 2, 1),
    Sketcher.Constraint("Coincident", 2, 2, 3, 1),
    Sketcher.Constraint("Tangent", 3, 2, 0, 1),
    Sketcher.Constraint("Equal", 0, 2),
    Sketcher.Constraint("Parallel", 1, 3),
    Sketcher.Constraint("Radius", 0, 10.0),
    Sketcher.Constraint("Distance", 1, 290.0),
    Sketcher.Constraint("DistanceY", 2, 3, -1, 1, 215.0),
    Sketcher.Constraint("DistanceX", 2, 3, -1, 1, 37.5),
    Sketcher.Constraint("DistanceY", 0, 2, -1, 1, 18.848191),
    Sketcher.Constraint("DistanceX", 1, 2, 2, 2, 16.708318),
])
pad10 = body.newObject("PartDesign::Pad", "Pad009")
pad10.Profile = sketch10
pad10.Length = 10

sketch11 = body.newObject("Sketcher::SketchObject", "Sketch010")
sketch11.AttachmentSupport = (doc.getObject("XZ_Plane"), [""])
sketch11.MapMode = "FlatFace"
sketch11.AttachmentOffset = App.Placement(V(0, 0, -50.02364), App.Rotation())
sketch11.addGeometry([
    Part.LineSegment(V(-50, -217, 0), V(-251, -18, 0)),
    Part.ArcOfCircle(Part.Circle(V(-244, -11, 0), V(0, 0, 1), 10), math.radians(45), math.radians(225)),
    Part.LineSegment(V(-237, -4, 0), V(-30, -208, 0)),
    Part.ArcOfCircle(Part.Circle(V(-38, -215, 0), V(0, 0, 1), 10), math.radians(-135), math.radians(45)),
    Part.LineSegment(V(-45, -222, 0), V(-50, -217, 0)),
], False)
sketch11.addConstraint([
    Sketcher.Constraint("Tangent", 0, 2, 1, 2),
    Sketcher.Constraint("Tangent", 1, 1, 2, 1),
    Sketcher.Constraint("Tangent", 2, 2, 3, 2),
    Sketcher.Constraint("Tangent", 3, 1, 4, 1),
    Sketcher.Constraint("Coincident", 4, 2, 0, 1),
    Sketcher.Constraint("Equal", 1, 3),
    Sketcher.Constraint("Parallel", 0, 2),
    Sketcher.Constraint("Radius", 1, 10.0),
    Sketcher.Constraint("Distance", 2, 290.0),
    Sketcher.Constraint("DistanceY", 3, 3, -1, 1, 215.0),
    Sketcher.Constraint("DistanceX", 4, 2, -1, 1, 50.0),
    Sketcher.Constraint("DistanceX", 3, 3, -1, 1, 37.5),
    Sketcher.Constraint("DistanceX", 1, 3, -1, 1, 243.956202),
])
pad11 = body.newObject("PartDesign::Pad", "Pad010")
pad11.Profile = sketch11
pad11.Length = 10
pad11.Reversed = True

sketch12 = body.newObject("Sketcher::SketchObject", "Sketch011")
sketch12.AttachmentSupport = (doc.getObject("XZ_Plane"), [""])
sketch12.MapMode = "FlatFace"
sketch12.AttachmentOffset = App.Placement(V(0, 0, -700), App.Rotation())
sketch12.addGeometry([
    Part.ArcOfCircle(Part.Circle(V(-1276, -12, 0), V(0, 0, 1), 10), math.radians(-46), math.radians(134)),
    Part.LineSegment(V(-1283, -5, 0), V(-1490, -208, 0)),
    Part.ArcOfCircle(Part.Circle(V(-1482, -215, 0), V(0, 0, 1), 10), math.radians(134), math.radians(314)),
    Part.LineSegment(V(-1475, -222, 0), V(-1269, -19, 0)),
], False)
sketch12.addConstraint([
    Sketcher.Constraint("Tangent", 0, 2, 1, 1),
    Sketcher.Constraint("Tangent", 1, 2, 2, 1),
    Sketcher.Constraint("Tangent", 2, 2, 3, 1),
    Sketcher.Constraint("Tangent", 3, 2, 0, 1),
    Sketcher.Constraint("Equal", 0, 2),
    Sketcher.Constraint("Radius", 0, 10.0),
    Sketcher.Constraint("Distance", 1, 290.0),
    Sketcher.Constraint("DistanceY", 2, 3, -1, 1, 215.0),
    Sketcher.Constraint("DistanceX", 2, 3, -1, 1, 1482.5),
    Sketcher.Constraint("DistanceX", 1, 2, -1, 1, 1489.504411),
])
pad12 = body.newObject("PartDesign::Pad", "Pad011")
pad12.Profile = sketch12
pad12.Length = 10

sketch13 = body.newObject("Sketcher::SketchObject", "Sketch012")
sketch13.AttachmentSupport = (doc.getObject("XZ_Plane"), [""])
sketch13.MapMode = "FlatFace"
sketch13.AttachmentOffset = App.Placement(V(0, 0, -50), App.Rotation())
sketch13.addGeometry([
    Part.ArcOfCircle(Part.Circle(V(-1482, -215, 0), V(0, 0, 1), 10), math.radians(134), math.radians(314)),
    Part.LineSegment(V(-1489, -208, 0), V(-1470, -189, 0)),
    Part.LineSegment(V(-1470, -189, 0), V(-1282, -5, 0)),
    Part.ArcOfCircle(Part.Circle(V(-1275, -12, 0), V(0, 0, 1), 10), math.radians(-46), math.radians(134)),
    Part.LineSegment(V(-1268, -19, 0), V(-1470, -217, 0)),
    Part.LineSegment(V(-1470, -217, 0), V(-1476, -222, 0)),
], False)
sketch13.addConstraint([
    Sketcher.Constraint("Tangent", 0, 1, 1, 1),
    Sketcher.Constraint("Coincident", 1, 2, 2, 1),
    Sketcher.Constraint("Tangent", 2, 2, 3, 2),
    Sketcher.Constraint("Tangent", 3, 1, 4, 1),
    Sketcher.Constraint("Coincident", 4, 2, 5, 1),
    Sketcher.Constraint("Tangent", 5, 2, 0, 2),
    Sketcher.Constraint("Equal", 0, 3),
    Sketcher.Constraint("Parallel", 1, 2),
    Sketcher.Constraint("Parallel", 2, 4),
    Sketcher.Constraint("Vertical", 1, 2, 4, 2),
    Sketcher.Constraint("Radius", 0, 10.0),
    Sketcher.Constraint("DistanceY", 0, 3, -1, 1, 215.0),
    Sketcher.Constraint("DistanceX", 1, 2, -1, 1, 1470.0),
    Sketcher.Constraint("DistanceX", 0, 3, -1, 1, 1482.5),
    Sketcher.Constraint("Distance", 1, 27.273001),
    Sketcher.Constraint("Distance", 2, 262.726999),
])
pad13 = body.newObject("PartDesign::Pad", "Pad012")
pad13.Profile = sketch13
pad13.Length = 10
pad13.Reversed = True

doc.recompute()
